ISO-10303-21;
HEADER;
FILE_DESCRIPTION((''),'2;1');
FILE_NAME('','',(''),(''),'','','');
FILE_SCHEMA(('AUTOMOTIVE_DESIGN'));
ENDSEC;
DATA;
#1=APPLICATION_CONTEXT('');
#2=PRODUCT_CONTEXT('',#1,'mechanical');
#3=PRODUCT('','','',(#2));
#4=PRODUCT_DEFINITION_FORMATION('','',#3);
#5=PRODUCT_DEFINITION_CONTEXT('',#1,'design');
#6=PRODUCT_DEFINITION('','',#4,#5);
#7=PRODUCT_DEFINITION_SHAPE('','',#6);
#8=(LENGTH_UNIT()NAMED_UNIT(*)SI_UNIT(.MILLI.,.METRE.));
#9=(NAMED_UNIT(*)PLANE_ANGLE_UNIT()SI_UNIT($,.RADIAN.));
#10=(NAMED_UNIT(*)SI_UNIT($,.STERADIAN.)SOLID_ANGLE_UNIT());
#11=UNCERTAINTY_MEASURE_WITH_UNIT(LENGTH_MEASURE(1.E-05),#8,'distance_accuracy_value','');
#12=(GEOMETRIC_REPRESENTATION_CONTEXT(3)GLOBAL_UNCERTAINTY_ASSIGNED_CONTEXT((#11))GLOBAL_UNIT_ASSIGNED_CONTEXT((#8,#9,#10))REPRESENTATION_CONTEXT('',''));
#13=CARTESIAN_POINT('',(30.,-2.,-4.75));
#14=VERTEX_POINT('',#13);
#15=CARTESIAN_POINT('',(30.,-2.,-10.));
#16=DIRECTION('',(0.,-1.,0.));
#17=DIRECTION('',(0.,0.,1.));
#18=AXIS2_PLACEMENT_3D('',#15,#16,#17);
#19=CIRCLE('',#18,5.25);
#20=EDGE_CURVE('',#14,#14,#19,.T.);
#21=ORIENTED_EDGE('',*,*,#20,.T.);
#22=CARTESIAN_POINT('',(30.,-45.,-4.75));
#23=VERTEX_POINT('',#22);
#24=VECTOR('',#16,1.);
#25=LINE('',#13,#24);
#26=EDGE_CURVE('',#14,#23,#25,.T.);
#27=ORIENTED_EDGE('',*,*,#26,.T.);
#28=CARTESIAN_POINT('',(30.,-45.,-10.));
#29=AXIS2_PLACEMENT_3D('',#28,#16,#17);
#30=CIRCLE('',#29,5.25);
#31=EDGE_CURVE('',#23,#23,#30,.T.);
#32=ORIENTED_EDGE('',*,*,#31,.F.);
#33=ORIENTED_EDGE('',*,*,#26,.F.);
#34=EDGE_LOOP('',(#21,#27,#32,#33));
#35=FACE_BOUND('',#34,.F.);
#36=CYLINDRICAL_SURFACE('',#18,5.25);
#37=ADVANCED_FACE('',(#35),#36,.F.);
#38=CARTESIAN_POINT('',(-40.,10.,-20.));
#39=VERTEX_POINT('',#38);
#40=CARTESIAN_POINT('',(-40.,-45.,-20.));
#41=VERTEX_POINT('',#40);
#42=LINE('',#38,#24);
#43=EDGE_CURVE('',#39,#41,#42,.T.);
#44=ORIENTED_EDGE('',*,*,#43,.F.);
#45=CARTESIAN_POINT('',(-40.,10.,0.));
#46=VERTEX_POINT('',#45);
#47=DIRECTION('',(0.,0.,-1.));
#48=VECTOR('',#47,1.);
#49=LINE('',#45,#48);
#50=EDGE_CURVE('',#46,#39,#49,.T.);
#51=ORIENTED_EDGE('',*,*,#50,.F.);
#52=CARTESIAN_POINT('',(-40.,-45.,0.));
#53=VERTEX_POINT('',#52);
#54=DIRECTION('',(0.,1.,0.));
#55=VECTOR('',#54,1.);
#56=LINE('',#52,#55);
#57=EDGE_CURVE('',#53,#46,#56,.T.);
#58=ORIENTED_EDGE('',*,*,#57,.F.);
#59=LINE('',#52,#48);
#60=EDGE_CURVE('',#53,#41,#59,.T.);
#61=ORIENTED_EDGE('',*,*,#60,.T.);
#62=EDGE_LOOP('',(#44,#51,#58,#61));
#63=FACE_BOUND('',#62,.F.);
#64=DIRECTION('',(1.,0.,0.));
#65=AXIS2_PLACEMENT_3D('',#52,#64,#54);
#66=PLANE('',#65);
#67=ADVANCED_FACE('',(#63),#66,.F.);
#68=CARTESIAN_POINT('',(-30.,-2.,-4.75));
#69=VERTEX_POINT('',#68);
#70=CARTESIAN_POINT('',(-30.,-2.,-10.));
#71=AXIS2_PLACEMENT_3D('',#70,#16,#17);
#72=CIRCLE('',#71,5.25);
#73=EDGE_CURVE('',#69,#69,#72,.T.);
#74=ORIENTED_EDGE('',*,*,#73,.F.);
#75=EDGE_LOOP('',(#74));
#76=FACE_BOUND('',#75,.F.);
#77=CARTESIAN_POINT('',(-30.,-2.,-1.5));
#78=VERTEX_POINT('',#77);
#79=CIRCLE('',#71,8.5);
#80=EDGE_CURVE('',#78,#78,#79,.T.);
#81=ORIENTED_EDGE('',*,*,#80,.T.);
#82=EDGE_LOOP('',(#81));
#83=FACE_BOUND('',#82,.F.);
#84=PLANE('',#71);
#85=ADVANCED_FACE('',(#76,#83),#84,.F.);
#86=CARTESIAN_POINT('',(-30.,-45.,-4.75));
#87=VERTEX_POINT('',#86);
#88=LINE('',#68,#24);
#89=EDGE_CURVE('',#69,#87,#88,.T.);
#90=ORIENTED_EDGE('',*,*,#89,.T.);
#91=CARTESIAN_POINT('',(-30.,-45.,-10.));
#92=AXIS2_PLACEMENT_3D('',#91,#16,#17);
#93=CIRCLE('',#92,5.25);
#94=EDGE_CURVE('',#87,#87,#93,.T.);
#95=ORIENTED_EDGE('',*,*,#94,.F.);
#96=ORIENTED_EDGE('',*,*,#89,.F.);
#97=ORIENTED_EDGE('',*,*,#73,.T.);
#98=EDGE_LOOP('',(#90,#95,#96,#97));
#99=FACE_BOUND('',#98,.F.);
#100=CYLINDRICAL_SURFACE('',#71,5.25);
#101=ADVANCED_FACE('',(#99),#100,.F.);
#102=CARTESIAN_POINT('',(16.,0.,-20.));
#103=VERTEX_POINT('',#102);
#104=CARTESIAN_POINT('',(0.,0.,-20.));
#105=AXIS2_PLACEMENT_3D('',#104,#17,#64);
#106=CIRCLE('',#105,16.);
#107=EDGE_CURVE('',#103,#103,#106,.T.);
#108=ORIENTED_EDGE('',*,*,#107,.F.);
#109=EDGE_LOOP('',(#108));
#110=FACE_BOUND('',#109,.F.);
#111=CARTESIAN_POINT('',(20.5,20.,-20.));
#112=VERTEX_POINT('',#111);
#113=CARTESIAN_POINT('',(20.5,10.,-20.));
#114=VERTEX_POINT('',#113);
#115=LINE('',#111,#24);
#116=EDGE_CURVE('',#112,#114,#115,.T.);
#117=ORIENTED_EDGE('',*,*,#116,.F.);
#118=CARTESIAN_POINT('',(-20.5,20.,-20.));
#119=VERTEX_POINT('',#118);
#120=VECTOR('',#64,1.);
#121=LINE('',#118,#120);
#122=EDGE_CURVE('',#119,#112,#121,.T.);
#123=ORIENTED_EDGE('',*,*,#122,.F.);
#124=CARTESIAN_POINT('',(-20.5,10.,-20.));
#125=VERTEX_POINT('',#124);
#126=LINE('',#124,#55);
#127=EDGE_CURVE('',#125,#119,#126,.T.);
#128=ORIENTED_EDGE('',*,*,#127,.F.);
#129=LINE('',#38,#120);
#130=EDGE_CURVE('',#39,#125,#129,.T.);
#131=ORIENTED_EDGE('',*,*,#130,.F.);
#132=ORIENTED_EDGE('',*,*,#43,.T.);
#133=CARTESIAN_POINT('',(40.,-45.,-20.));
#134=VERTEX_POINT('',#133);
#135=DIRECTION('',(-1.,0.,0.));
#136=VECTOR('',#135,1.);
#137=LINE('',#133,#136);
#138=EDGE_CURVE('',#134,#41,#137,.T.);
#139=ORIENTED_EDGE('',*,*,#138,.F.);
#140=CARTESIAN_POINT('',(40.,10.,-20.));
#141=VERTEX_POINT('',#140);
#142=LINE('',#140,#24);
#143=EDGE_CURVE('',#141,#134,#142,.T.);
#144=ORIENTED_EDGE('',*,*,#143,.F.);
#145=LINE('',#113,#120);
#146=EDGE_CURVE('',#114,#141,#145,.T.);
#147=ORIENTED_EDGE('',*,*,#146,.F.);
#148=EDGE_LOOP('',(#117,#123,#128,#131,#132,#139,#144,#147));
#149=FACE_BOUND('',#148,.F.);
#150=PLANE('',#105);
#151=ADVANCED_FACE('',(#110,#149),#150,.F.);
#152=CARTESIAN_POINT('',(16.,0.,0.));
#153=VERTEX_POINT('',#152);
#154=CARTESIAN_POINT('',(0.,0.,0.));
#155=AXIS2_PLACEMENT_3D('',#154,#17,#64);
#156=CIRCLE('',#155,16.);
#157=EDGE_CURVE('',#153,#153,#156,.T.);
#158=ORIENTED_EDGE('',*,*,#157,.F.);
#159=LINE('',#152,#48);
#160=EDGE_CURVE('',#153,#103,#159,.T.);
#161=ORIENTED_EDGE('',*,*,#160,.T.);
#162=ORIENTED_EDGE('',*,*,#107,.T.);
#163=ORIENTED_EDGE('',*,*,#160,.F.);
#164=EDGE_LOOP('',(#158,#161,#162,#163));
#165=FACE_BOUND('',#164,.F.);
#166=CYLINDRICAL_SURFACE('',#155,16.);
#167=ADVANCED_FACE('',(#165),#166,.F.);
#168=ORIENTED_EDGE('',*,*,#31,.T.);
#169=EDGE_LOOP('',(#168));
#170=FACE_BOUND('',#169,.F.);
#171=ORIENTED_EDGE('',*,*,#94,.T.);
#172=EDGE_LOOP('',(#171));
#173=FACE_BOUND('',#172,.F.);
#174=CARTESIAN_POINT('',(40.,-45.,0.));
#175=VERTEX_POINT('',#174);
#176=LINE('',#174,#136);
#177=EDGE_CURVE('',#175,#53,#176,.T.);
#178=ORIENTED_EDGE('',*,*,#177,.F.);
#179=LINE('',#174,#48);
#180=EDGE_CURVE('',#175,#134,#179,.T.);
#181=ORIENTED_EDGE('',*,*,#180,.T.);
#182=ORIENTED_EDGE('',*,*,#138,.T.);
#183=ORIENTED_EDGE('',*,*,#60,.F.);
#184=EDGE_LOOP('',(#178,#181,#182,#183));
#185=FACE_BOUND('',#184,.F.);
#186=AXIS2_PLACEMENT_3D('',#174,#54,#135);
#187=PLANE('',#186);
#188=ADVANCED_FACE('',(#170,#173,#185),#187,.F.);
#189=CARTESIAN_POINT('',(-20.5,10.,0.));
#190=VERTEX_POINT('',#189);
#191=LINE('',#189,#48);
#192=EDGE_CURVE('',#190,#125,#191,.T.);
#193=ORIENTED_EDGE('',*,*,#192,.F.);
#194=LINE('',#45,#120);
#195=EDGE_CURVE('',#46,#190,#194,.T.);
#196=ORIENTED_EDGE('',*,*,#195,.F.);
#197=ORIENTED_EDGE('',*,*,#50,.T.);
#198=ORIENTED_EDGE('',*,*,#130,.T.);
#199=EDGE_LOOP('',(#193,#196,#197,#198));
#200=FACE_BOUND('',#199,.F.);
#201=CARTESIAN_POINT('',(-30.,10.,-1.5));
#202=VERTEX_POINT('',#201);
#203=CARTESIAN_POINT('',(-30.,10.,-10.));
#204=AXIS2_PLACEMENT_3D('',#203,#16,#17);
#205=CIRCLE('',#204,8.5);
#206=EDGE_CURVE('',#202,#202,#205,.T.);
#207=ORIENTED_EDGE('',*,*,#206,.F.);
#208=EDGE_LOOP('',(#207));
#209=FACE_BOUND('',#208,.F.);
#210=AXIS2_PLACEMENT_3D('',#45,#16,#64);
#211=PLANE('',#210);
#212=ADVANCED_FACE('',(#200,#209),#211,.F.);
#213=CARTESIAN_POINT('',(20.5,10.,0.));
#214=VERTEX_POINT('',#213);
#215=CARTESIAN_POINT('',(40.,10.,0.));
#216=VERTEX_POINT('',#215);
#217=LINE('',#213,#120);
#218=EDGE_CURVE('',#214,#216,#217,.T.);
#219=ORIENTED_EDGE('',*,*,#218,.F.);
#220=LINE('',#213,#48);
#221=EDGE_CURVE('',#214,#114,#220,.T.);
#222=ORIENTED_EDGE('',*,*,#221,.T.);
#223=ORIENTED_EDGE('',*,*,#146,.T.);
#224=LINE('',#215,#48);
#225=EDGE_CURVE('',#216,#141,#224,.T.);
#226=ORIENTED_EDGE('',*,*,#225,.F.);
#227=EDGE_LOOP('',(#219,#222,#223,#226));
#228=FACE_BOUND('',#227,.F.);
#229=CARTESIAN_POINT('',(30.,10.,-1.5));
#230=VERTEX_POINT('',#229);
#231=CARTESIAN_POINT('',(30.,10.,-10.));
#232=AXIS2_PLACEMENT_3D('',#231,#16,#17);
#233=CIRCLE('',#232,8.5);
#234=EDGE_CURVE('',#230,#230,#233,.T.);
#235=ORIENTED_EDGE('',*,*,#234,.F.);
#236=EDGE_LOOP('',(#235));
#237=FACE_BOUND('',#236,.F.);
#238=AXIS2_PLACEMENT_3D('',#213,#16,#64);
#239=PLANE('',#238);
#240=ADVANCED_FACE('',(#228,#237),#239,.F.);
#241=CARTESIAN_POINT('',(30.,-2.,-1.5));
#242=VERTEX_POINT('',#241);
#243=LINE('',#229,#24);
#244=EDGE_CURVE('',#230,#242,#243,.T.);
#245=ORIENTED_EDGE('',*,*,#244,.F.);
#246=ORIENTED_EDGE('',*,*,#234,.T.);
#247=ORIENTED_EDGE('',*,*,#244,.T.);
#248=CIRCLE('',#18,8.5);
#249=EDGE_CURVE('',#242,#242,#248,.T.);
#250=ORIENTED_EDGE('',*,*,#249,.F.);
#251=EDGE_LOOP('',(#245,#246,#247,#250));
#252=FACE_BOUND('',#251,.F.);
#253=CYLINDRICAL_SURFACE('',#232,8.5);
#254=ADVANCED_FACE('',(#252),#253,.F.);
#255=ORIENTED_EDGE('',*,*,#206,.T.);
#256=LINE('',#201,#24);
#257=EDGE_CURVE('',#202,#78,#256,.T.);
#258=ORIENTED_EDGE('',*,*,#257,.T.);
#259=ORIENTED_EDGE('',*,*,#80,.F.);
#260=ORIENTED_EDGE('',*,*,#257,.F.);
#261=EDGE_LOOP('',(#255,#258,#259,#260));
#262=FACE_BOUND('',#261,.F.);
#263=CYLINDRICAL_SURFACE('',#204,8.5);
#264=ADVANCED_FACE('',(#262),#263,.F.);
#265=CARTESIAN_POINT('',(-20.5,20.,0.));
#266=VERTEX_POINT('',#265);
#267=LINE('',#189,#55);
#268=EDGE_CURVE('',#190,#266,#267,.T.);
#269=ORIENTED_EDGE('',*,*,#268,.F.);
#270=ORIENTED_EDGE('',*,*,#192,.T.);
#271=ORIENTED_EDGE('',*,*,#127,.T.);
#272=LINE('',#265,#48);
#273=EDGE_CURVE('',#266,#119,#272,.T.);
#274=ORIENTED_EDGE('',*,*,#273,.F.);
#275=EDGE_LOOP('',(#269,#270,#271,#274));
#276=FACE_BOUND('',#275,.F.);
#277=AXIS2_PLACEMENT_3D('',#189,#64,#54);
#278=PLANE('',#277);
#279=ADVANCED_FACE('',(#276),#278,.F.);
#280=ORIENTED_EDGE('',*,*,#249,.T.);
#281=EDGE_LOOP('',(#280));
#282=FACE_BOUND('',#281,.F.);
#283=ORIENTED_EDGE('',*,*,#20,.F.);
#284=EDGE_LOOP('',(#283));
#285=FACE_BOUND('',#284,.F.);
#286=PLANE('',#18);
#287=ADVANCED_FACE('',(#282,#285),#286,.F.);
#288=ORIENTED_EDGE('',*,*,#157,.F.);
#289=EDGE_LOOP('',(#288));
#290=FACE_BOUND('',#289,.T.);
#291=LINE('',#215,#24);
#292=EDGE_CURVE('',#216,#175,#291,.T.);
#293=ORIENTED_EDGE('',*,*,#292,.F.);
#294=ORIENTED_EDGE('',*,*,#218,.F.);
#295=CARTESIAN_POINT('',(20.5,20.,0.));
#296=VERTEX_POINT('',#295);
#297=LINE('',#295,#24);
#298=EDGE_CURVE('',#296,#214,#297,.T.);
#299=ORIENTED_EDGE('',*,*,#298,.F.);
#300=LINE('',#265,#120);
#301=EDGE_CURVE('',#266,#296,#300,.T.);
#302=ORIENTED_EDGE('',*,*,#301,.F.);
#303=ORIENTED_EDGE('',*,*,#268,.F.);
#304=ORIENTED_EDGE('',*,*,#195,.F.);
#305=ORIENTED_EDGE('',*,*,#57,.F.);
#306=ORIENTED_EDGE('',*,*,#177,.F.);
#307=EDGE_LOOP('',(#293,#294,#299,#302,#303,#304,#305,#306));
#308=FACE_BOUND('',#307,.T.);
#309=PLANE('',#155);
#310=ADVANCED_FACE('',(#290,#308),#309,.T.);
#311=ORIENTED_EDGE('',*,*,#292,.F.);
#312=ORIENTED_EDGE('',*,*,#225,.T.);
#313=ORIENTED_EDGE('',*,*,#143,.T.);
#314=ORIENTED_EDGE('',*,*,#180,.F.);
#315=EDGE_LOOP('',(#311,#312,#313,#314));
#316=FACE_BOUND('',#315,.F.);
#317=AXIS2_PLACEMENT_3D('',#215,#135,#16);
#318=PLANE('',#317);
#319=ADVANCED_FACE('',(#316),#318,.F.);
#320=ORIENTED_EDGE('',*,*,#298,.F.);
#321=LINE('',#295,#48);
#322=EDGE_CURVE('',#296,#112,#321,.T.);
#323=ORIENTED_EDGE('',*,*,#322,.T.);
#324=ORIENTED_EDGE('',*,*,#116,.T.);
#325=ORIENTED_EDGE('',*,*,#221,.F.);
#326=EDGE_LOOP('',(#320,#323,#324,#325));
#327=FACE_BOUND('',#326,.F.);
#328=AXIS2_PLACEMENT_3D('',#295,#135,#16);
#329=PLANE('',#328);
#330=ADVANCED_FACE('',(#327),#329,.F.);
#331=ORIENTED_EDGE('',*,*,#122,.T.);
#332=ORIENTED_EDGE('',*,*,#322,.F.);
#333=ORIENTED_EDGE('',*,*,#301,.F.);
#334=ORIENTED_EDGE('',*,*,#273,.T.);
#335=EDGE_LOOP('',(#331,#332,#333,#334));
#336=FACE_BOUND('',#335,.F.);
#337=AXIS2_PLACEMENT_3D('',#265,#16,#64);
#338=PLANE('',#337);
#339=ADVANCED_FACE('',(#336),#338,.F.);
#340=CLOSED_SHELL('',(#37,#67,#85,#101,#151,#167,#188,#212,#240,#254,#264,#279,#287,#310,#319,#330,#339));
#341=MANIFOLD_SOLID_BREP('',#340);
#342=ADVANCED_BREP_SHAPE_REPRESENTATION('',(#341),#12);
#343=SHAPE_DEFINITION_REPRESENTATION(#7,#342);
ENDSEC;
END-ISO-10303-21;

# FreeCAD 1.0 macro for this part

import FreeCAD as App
import Part
import Sketcher
from FreeCAD import Vector


def add_polygon(sketch, points):
    """Adds a closed chain of lines whose ends are joined by coincident constraints."""
    first, n = sketch.GeometryCount, len(points)
    for a, b in zip(points, points[1:] + points[:1]):
        sketch.addGeometry(Part.LineSegment(App.Vector(*a, 0), App.Vector(*b, 0)), False)
    for i in range(n):
        sketch.addConstraint(Sketcher.Constraint("Coincident", first + i, 2, first + (i + 1) % n, 1))

doc = App.newDocument("Part")
params = doc.addObject("Spreadsheet::Sheet", "Params")
for row, (alias, value) in enumerate([
    ("sketch1_width", "41 mm"),
    ("sketch1_height", "55 mm"),
    ("sketch1_height2", "10 mm"),
    ("sketch1_width2", "19.5 mm"),
    ("pad1_length", "20 mm"),
    ("sketch2_diameter", "10.5 mm"),
    ("hole_diameter", "10.5 mm"),
    ("hole_cbore_diameter", "17 mm"),
    ("hole_cbore_depth", "12 mm"),
    ("sketch3_diameter", "32 mm"),
    ("pocket1_length", "20 mm"),
], start=1):
    params.set(f"A{row}", alias)
    params.set(f"B{row}", "=" + value)
    params.setAlias(f"B{row}", alias)

body = doc.addObject("PartDesign::Body", "Body")

# Sketch on XY plane
sketch1 = body.newObject("Sketcher::SketchObject", "Sketch")
sketch1.AttachmentSupport = (doc.getObject("XY_Plane"), [""])
sketch1.MapMode = "FlatFace"
add_polygon(sketch1, [(-40, 10), (-40, -45), (40, -45), (40, 10), (20, 10), (20, 20), (-20, 20), (-20, 10)])  # lines 0-7
sketch1.addConstraint(Sketcher.Constraint("Vertical", 0))
sketch1.addConstraint(Sketcher.Constraint("Horizontal", 1))
sketch1.addConstraint(Sketcher.Constraint("Vertical", 2))
sketch1.addConstraint(Sketcher.Constraint("Horizontal", 3))
sketch1.addConstraint(Sketcher.Constraint("Vertical", 4))
sketch1.addConstraint(Sketcher.Constraint("Horizontal", 5))
sketch1.addConstraint(Sketcher.Constraint("Vertical", 6))
sketch1.addConstraint(Sketcher.Constraint("Horizontal", 7))
sketch1.addConstraint(Sketcher.Constraint("Symmetric", 3, 2, 6, 2, -2))
sketch1.addConstraint(Sketcher.Constraint("Equal", 3, 7))
sketch1.addConstraint(Sketcher.Constraint("DistanceX", 5, 2, 5, 1, 41.0))
sketch1.addConstraint(Sketcher.Constraint("DistanceY", 0, 2, 0, 1, 55.0))
sketch1.addConstraint(Sketcher.Constraint("DistanceY", 4, 1, 4, 2, 10.0))
sketch1.addConstraint(Sketcher.Constraint("DistanceX", 3, 2, 3, 1, 19.5))
sketch1.addConstraint(Sketcher.Constraint("DistanceY", -1, 1, 2, 2, 10.0))
sketch1.setExpression("Constraints[18]", "Params.sketch1_width")
sketch1.setExpression("Constraints[19]", "Params.sketch1_height")
sketch1.setExpression("Constraints[20]", "Params.sketch1_height2")
sketch1.setExpression("Constraints[21]", "Params.sketch1_width2")
pad1 = body.newObject("PartDesign::Pad", "Pad")
pad1.Profile = sketch1
pad1.setExpression("Length", "Params.pad1_length")
pad1.Reversed = True

# Sketch on XZ plane
sketch2 = body.newObject("Sketcher::SketchObject", "Sketch001")
sketch2.AttachmentSupport = (doc.getObject("XZ_Plane"), [""])
sketch2.MapMode = "FlatFace"
sketch2.AttachmentOffset = App.Placement(Vector(0, 0, -10), App.Rotation())
sketch2.addGeometry(Part.Circle(Vector(30, -10, 0), Vector(0, 0, 1), 5), False)
sketch2.addGeometry(Part.Circle(Vector(-30, -10, 0), Vector(0, 0, 1), 5), False)
sketch2.addConstraint(Sketcher.Constraint("Equal", 0, 1))
sketch2.addConstraint(Sketcher.Constraint("Symmetric", 0, 3, 1, 3, -2))
sketch2.addConstraint(Sketcher.Constraint("Diameter", 0, 10.5))
sketch2.addConstraint(Sketcher.Constraint("DistanceX", -1, 1, 0, 3, 30.0))
sketch2.addConstraint(Sketcher.Constraint("DistanceY", 0, 3, -1, 1, 10.0))
sketch2.setExpression("Constraints[2]", "Params.sketch2_diameter")
doc.recompute()
hole = body.newObject("PartDesign::Hole", "Hole")
hole.Profile = sketch2
hole.ThreadType = "None"
hole.setExpression("Diameter", "Params.hole_diameter")
hole.DepthType = "ThroughAll"
hole.HoleCutType = "Counterbore"
hole.setExpression("HoleCutDiameter", "Params.hole_cbore_diameter")
hole.setExpression("HoleCutDepth", "Params.hole_cbore_depth")
hole.Reversed = True

# Sketch on XY plane
sketch3 = body.newObject("Sketcher::SketchObject", "Sketch002")
sketch3.AttachmentSupport = (doc.getObject("XY_Plane"), [""])
sketch3.MapMode = "FlatFace"
sketch3.addGeometry(Part.Circle(Vector(0, 0, 0), Vector(0, 0, 1), 16), False)
sketch3.addConstraint(Sketcher.Constraint("Coincident", 0, 3, -1, 1))
sketch3.addConstraint(Sketcher.Constraint("Diameter", 0, 32.0))
sketch3.setExpression("Constraints[1]", "Params.sketch3_diameter")
pocket1 = body.newObject("PartDesign::Pocket", "Pocket")
pocket1.Profile = sketch3
pocket1.setExpression("Length", "Params.pocket1_length")

doc.recompute()
